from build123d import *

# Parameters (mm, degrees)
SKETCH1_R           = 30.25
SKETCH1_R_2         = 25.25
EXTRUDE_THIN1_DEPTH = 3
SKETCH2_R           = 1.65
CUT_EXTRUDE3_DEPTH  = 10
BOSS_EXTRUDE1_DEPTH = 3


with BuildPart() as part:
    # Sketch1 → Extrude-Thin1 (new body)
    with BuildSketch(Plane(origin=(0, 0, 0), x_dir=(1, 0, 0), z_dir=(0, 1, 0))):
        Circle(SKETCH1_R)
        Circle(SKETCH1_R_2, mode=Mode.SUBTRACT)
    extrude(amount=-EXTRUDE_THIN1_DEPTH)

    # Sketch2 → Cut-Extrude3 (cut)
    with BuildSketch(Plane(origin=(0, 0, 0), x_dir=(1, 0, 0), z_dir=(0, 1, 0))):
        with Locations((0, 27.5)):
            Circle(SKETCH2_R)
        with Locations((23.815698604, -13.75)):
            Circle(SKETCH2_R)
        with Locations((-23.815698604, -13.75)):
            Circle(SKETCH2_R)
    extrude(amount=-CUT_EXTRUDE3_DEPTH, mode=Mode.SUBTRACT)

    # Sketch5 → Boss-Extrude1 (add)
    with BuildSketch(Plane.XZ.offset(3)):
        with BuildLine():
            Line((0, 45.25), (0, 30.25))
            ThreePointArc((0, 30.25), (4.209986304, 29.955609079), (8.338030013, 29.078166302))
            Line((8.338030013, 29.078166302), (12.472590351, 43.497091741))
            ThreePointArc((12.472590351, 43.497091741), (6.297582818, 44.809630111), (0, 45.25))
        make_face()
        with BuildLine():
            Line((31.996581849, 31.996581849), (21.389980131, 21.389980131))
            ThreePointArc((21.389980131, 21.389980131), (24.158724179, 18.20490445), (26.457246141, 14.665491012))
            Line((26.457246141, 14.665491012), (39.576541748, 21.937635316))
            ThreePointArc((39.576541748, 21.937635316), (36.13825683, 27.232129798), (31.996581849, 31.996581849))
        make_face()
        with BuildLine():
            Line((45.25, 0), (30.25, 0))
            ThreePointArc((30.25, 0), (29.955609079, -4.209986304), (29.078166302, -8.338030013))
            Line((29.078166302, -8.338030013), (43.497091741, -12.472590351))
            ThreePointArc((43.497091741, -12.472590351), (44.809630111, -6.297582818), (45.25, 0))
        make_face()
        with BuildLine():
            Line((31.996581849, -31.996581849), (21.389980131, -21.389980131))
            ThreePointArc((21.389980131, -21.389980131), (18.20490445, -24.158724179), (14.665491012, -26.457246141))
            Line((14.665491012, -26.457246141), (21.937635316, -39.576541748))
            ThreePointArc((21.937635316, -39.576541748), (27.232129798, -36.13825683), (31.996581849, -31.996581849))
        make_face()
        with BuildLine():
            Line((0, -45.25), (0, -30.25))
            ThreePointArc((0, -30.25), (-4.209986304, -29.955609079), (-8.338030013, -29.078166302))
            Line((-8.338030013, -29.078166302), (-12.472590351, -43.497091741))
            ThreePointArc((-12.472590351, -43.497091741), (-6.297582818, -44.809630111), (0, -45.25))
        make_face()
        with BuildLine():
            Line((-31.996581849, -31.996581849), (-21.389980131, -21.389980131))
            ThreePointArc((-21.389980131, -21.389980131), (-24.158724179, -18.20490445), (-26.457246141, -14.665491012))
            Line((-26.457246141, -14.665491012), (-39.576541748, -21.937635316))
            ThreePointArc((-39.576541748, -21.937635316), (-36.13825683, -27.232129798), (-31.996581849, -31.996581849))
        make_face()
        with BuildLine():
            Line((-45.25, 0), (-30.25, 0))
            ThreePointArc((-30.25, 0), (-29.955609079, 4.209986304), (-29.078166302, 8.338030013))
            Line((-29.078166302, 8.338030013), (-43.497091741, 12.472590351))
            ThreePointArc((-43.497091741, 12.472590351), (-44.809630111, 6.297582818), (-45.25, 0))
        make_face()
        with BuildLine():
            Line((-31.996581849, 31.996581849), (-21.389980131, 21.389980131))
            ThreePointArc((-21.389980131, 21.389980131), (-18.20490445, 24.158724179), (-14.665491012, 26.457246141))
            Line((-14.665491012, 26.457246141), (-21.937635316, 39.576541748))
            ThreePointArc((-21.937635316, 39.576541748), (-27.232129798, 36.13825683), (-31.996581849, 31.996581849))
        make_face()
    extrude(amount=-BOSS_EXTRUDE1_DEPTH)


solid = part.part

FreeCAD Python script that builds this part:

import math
import FreeCAD as App
import Part
import Sketcher
Q = App.Units.Quantity

doc = App.newDocument("Part")
body = doc.addObject("PartDesign::Body", "Body")

# Sketch on XZ plane
sketch1 = body.newObject("Sketcher::SketchObject", "Sketch")
sketch1.AttachmentSupport = (doc.getObject("XZ_Plane"), [""])
sketch1.MapMode = "FlatFace"
sketch1.addGeometry(Part.Circle(App.Vector(0, 0, 0), App.Vector(0, 0, 1), 30), False)
sketch1.addGeometry(Part.Circle(App.Vector(0, 0, 0), App.Vector(0, 0, 1), 25), False)
sketch1.addConstraint(Sketcher.Constraint("Coincident", 0, 3, -1, 1))
sketch1.addConstraint(Sketcher.Constraint("Coincident", 1, 3, -1, 1))
sketch1.addConstraint(Sketcher.Constraint("Diameter", 0, Q("60.5 mm")))
sketch1.addConstraint(Sketcher.Constraint("Diameter", 1, Q("50.5 mm")))
pad1 = body.newObject("PartDesign::Pad", "Pad")
pad1.Profile = sketch1
pad1.Length = 3

# Sketch on XZ plane
sketch2 = body.newObject("Sketcher::SketchObject", "Sketch001")
sketch2.AttachmentSupport = (doc.getObject("XZ_Plane"), [""])
sketch2.MapMode = "FlatFace"
sketch2.addGeometry(Part.Circle(App.Vector(0, -27.5, 0), App.Vector(0, 0, 1), 1.6), False)
sketch2.addGeometry(Part.Circle(App.Vector(23.8, 13.8, 0), App.Vector(0, 0, 1), 1.6), False)
sketch2.addGeometry(Part.Circle(App.Vector(-23.8, 13.8, 0), App.Vector(0, 0, 1), 1.6), False)
sketch2.addConstraint(Sketcher.Constraint("Equal", 0, 1))
sketch2.addConstraint(Sketcher.Constraint("Equal", 1, 2))
sketch2.addConstraint(Sketcher.Constraint("Symmetric", 1, 3, 2, 3, -2))
sketch2.addConstraint(Sketcher.Constraint("PointOnObject", 0, 3, -2))
sketch2.addConstraint(Sketcher.Constraint("Diameter", 0, Q("3.3 mm")))
sketch2.addConstraint(Sketcher.Constraint("DistanceY", 0, 3, -1, 1, Q("27.5 mm")))
sketch2.addConstraint(Sketcher.Constraint("DistanceY", -1, 1, 1, 3, Q("13.75 mm")))
sketch2.addConstraint(Sketcher.Constraint("DistanceX", -1, 1, 1, 3, Q("23.815699 mm")))
pocket1 = body.newObject("PartDesign::Pocket", "Pocket")
pocket1.Profile = sketch2
pocket1.Length = 10
pocket1.Reversed = True

# Sketch on XZ plane
sketch3 = body.newObject("Sketcher::SketchObject", "Sketch002")
sketch3.AttachmentSupport = (doc.getObject("XZ_Plane"), [""])
sketch3.MapMode = "FlatFace"
sketch3.AttachmentOffset = App.Placement(App.Vector(0, 0, 3), App.Rotation())
sketch3.addGeometry(Part.LineSegment(App.Vector(0, 45, 0), App.Vector(0, 30, 0)), False)
sketch3.addGeometry(Part.ArcOfCircle(Part.Circle(App.Vector(0, 0, 0), App.Vector(0, 0, 1), 30), math.radians(74), math.radians(90)), False)
sketch3.addGeometry(Part.LineSegment(App.Vector(8, 29, 0), App.Vector(12, 43, 0)), False)
sketch3.addGeometry(Part.ArcOfCircle(Part.Circle(App.Vector(0, 0, 0), App.Vector(0, 0, 1), 45), math.radians(74), math.radians(90)), False)
sketch3.addGeometry(Part.LineSegment(App.Vector(32, 32, 0), App.Vector(21, 21, 0)), False)
sketch3.addGeometry(Part.ArcOfCircle(Part.Circle(App.Vector(0, 0, 0), App.Vector(0, 0, 1), 30), math.radians(29), math.radians(45)), False)
sketch3.addGeometry(Part.LineSegment(App.Vector(26, 15, 0), App.Vector(40, 22, 0)), False)
sketch3.addGeometry(Part.ArcOfCircle(Part.Circle(App.Vector(0, 0, 0), App.Vector(0, 0, 1), 45), math.radians(29), math.radians(45)), False)
sketch3.addGeometry(Part.LineSegment(App.Vector(45, 0, 0), App.Vector(30, 0, 0)), False)
sketch3.addGeometry(Part.ArcOfCircle(Part.Circle(App.Vector(0, 0, 0), App.Vector(0, 0, 1), 30), math.radians(-16), math.radians(0)), False)
sketch3.addGeometry(Part.LineSegment(App.Vector(29, -8, 0), App.Vector(43, -12, 0)), False)
sketch3.addGeometry(Part.ArcOfCircle(Part.Circle(App.Vector(0, 0, 0), App.Vector(0, 0, 1), 45), math.radians(-16), math.radians(0)), False)
sketch3.addGeometry(Part.LineSegment(App.Vector(32, -32, 0), App.Vector(21, -21, 0)), False)
sketch3.addGeometry(Part.ArcOfCircle(Part.Circle(App.Vector(0, 0, 0), App.Vector(0, 0, 1), 30), math.radians(-61), math.radians(-45)), False)
sketch3.addGeometry(Part.LineSegment(App.Vector(15, -26, 0), App.Vector(22, -40, 0)), False)
sketch3.addGeometry(Part.ArcOfCircle(Part.Circle(App.Vector(0, 0, 0), App.Vector(0, 0, 1), 45), math.radians(-61), math.radians(-45)), False)
sketch3.addGeometry(Part.LineSegment(App.Vector(0, -45, 0), App.Vector(0, -30, 0)), False)
sketch3.addGeometry(Part.ArcOfCircle(Part.Circle(App.Vector(0, 0, 0), App.Vector(0, 0, 1), 30), math.radians(-106), math.radians(-90)), False)
sketch3.addGeometry(Part.LineSegment(App.Vector(-8, -29, 0), App.Vector(-12, -43, 0)), False)
sketch3.addGeometry(Part.ArcOfCircle(Part.Circle(App.Vector(0, 0, 0), App.Vector(0, 0, 1), 45), math.radians(-106), math.radians(-90)), False)
sketch3.addGeometry(Part.LineSegment(App.Vector(-32, -32, 0), App.Vector(-21, -21, 0)), False)
sketch3.addGeometry(Part.ArcOfCircle(Part.Circle(App.Vector(0, 0, 0), App.Vector(0, 0, 1), 30), math.radians(-151), math.radians(-135)), False)
sketch3.addGeometry(Part.LineSegment(App.Vector(-26, -15, 0), App.Vector(-40, -22, 0)), False)
sketch3.addGeometry(Part.ArcOfCircle(Part.Circle(App.Vector(0, 0, 0), App.Vector(0, 0, 1), 45), math.radians(-151), math.radians(-135)), False)
sketch3.addGeometry(Part.LineSegment(App.Vector(-45, 0, 0), App.Vector(-30, 0, 0)), False)
sketch3.addGeometry(Part.ArcOfCircle(Part.Circle(App.Vector(0, 0, 0), App.Vector(0, 0, 1), 30), math.radians(164), math.radians(180)), False)
sketch3.addGeometry(Part.LineSegment(App.Vector(-29, 8, 0), App.Vector(-43, 12, 0)), False)
sketch3.addGeometry(Part.ArcOfCircle(Part.Circle(App.Vector(0, 0, 0), App.Vector(0, 0, 1), 45), math.radians(164), math.radians(180)), False)
sketch3.addGeometry(Part.LineSegment(App.Vector(-32, 32, 0), App.Vector(-21, 21, 0)), False)
sketch3.addGeometry(Part.ArcOfCircle(Part.Circle(App.Vector(0, 0, 0), App.Vector(0, 0, 1), 30), math.radians(119), math.radians(135)), False)
sketch3.addGeometry(Part.LineSegment(App.Vector(-15, 26, 0), App.Vector(-22, 40, 0)), False)
sketch3.addGeometry(Part.ArcOfCircle(Part.Circle(App.Vector(0, 0, 0), App.Vector(0, 0, 1), 45), math.radians(119), math.radians(135)), False)
sketch3.addConstraint(Sketcher.Constraint("Coincident", 0, 2, 1, 2))
sketch3.addConstraint(Sketcher.Constraint("Coincident", 1, 1, 2, 1))
sketch3.addConstraint(Sketcher.Constraint("Coincident", 2, 2, 3, 1))
sketch3.addConstraint(Sketcher.Constraint("Coincident", 3, 2, 0, 1))
sketch3.addConstraint(Sketcher.Constraint("Coincident", 4, 2, 5, 2))
sketch3.addConstraint(Sketcher.Constraint("Coincident", 5, 1, 6, 1))
sketch3.addConstraint(Sketcher.Constraint("Coincident", 6, 2, 7, 1))
sketch3.addConstraint(Sketcher.Constraint("Coincident", 7, 2, 4, 1))
sketch3.addConstraint(Sketcher.Constraint("Coincident", 8, 2, 9, 2))
sketch3.addConstraint(Sketcher.Constraint("Coincident", 9, 1, 10, 1))
sketch3.addConstraint(Sketcher.Constraint("Coincident", 10, 2, 11, 1))
sketch3.addConstraint(Sketcher.Constraint("Coincident", 11, 2, 8, 1))
sketch3.addConstraint(Sketcher.Constraint("Coincident", 12, 2, 13, 2))
sketch3.addConstraint(Sketcher.Constraint("Coincident", 13, 1, 14, 1))
sketch3.addConstraint(Sketcher.Constraint("Coincident", 14, 2, 15, 1))
sketch3.addConstraint(Sketcher.Constraint("Coincident", 15, 2, 12, 1))
sketch3.addConstraint(Sketcher.Constraint("Coincident", 16, 2, 17, 2))
sketch3.addConstraint(Sketcher.Constraint("Coincident", 17, 1, 18, 1))
sketch3.addConstraint(Sketcher.Constraint("Coincident", 18, 2, 19, 1))
sketch3.addConstraint(Sketcher.Constraint("Coincident", 19, 2, 16, 1))
sketch3.addConstraint(Sketcher.Constraint("Coincident", 20, 2, 21, 2))
sketch3.addConstraint(Sketcher.Constraint("Coincident", 21, 1, 22, 1))
sketch3.addConstraint(Sketcher.Constraint("Coincident", 22, 2, 23, 1))
sketch3.addConstraint(Sketcher.Constraint("Coincident", 23, 2, 20, 1))
sketch3.addConstraint(Sketcher.Constraint("Coincident", 24, 2, 25, 2))
sketch3.addConstraint(Sketcher.Constraint("Coincident", 25, 1, 26, 1))
sketch3.addConstraint(Sketcher.Constraint("Coincident", 26, 2, 27, 1))
sketch3.addConstraint(Sketcher.Constraint("Coincident", 27, 2, 24, 1))
sketch3.addConstraint(Sketcher.Constraint("Coincident", 28, 2, 29, 2))
sketch3.addConstraint(Sketcher.Constraint("Coincident", 29, 1, 30, 1))
sketch3.addConstraint(Sketcher.Constraint("Coincident", 30, 2, 31, 1))
sketch3.addConstraint(Sketcher.Constraint("Coincident", 31, 2, 28, 1))
sketch3.addConstraint(Sketcher.Constraint("Vertical", 0))
sketch3.addConstraint(Sketcher.Constraint("Horizontal", 8))
sketch3.addConstraint(Sketcher.Constraint("Vertical", 16))
sketch3.addConstraint(Sketcher.Constraint("Horizontal", 24))
sketch3.addConstraint(Sketcher.Constraint("Coincident", 1, 3, -1, 1))
sketch3.addConstraint(Sketcher.Constraint("Coincident", 3, 3, -1, 1))
sketch3.addConstraint(Sketcher.Constraint("Coincident", 5, 3, -1, 1))
sketch3.addConstraint(Sketcher.Constraint("Coincident", 7, 3, -1, 1))
sketch3.addConstraint(Sketcher.Constraint("Coincident", 9, 3, -1, 1))
sketch3.addConstraint(Sketcher.Constraint("Coincident", 11, 3, -1, 1))
sketch3.addConstraint(Sketcher.Constraint("Coincident", 13, 3, -1, 1))
sketch3.addConstraint(Sketcher.Constraint("Coincident", 15, 3, -1, 1))
sketch3.addConstraint(Sketcher.Constraint("Coincident", 17, 3, -1, 1))
sketch3.addConstraint(Sketcher.Constraint("Coincident", 19, 3, -1, 1))
sketch3.addConstraint(Sketcher.Constraint("Coincident", 21, 3, -1, 1))
sketch3.addConstraint(Sketcher.Constraint("Coincident", 23, 3, -1, 1))
sketch3.addConstraint(Sketcher.Constraint("Coincident", 25, 3, -1, 1))
sketch3.addConstraint(Sketcher.Constraint("Coincident", 27, 3, -1, 1))
sketch3.addConstraint(Sketcher.Constraint("Coincident", 29, 3, -1, 1))
sketch3.addConstraint(Sketcher.Constraint("Coincident", 31, 3, -1, 1))
sketch3.addConstraint(Sketcher.Constraint("Equal", 1, 5))
sketch3.addConstraint(Sketcher.Constraint("Equal", 3, 7))
sketch3.addConstraint(Sketcher.Constraint("Equal", 5, 9))
sketch3.addConstraint(Sketcher.Constraint("Equal", 7, 11))
sketch3.addConstraint(Sketcher.Constraint("Equal", 9, 13))
sketch3.addConstraint(Sketcher.Constraint("Equal", 11, 15))
sketch3.addConstraint(Sketcher.Constraint("Equal", 13, 17))
sketch3.addConstraint(Sketcher.Constraint("Equal", 15, 19))
sketch3.addConstraint(Sketcher.Constraint("Equal", 17, 21))
sketch3.addConstraint(Sketcher.Constraint("Equal", 19, 23))
sketch3.addConstraint(Sketcher.Constraint("Equal", 21, 25))
sketch3.addConstraint(Sketcher.Constraint("Equal", 23, 27))
sketch3.addConstraint(Sketcher.Constraint("Equal", 25, 29))
sketch3.addConstraint(Sketcher.Constraint("Equal", 27, 31))
sketch3.addConstraint(Sketcher.Constraint("PointOnObject", 0, 2, -2))
sketch3.addConstraint(Sketcher.Constraint("PointOnObject", 8, 2, -1))
sketch3.addConstraint(Sketcher.Constraint("PointOnObject", 16, 2, -2))
sketch3.addConstraint(Sketcher.Constraint("PointOnObject", 24, 2, -1))
sketch3.addConstraint(Sketcher.Constraint("Perpendicular", 2, 10))
sketch3.addConstraint(Sketcher.Constraint("Perpendicular", 4, 12))
sketch3.addConstraint(Sketcher.Constraint("Perpendicular", 6, 14))
sketch3.addConstraint(Sketcher.Constraint("Perpendicular", 10, 18))
sketch3.addConstraint(Sketcher.Constraint("Perpendicular", 12, 20))
sketch3.addConstraint(Sketcher.Constraint("Perpendicular", 14, 22))
sketch3.addConstraint(Sketcher.Constraint("Perpendicular", 18, 26))
sketch3.addConstraint(Sketcher.Constraint("Perpendicular", 20, 28))
sketch3.addConstraint(Sketcher.Constraint("Perpendicular", 22, 30))
sketch3.addConstraint(Sketcher.Constraint("Horizontal", 12, 2, 20, 2))
sketch3.addConstraint(Sketcher.Constraint("Horizontal", 15, 2, 23, 2))
sketch3.addConstraint(Sketcher.Constraint("Horizontal", 4, 2, 28, 2))
sketch3.addConstraint(Sketcher.Constraint("Vertical", 4, 2, 12, 2))
sketch3.addConstraint(Sketcher.Constraint("DistanceX", 8, 2, 8, 1, Q("15 mm")))
sketch3.addConstraint(Sketcher.Constraint("Angle", 2, Q("74 deg")))
sketch3.addConstraint(Sketcher.Constraint("Angle", 6, Q("29 deg")))
sketch3.addConstraint(Sketcher.Constraint("Radius", 1, Q("30.25 mm")))
sketch3.addConstraint(Sketcher.Constraint("DistanceX", -1, 1, 1, 1, Q("8.33803 mm")))
sketch3.addConstraint(Sketcher.Constraint("DistanceX", -1, 1, 4, 2, Q("21.38998 mm")))
sketch3.addConstraint(Sketcher.Constraint("DistanceY", -1, 1, 5, 1, Q("14.665491 mm")))
sketch3.addConstraint(Sketcher.Constraint("DistanceY", 9, 1, -1, 1, Q("8.33803 mm")))
sketch3.addConstraint(Sketcher.Constraint("DistanceX", -1, 1, 13, 1, Q("14.665491 mm")))
sketch3.addConstraint(Sketcher.Constraint("DistanceX", 17, 1, -1, 1, Q("8.33803 mm")))
sketch3.addConstraint(Sketcher.Constraint("DistanceY", 21, 1, -1, 1, Q("14.665491 mm")))
sketch3.addConstraint(Sketcher.Constraint("DistanceY", -1, 1, 25, 1, Q("8.33803 mm")))
sketch3.addConstraint(Sketcher.Constraint("DistanceX", 29, 1, -1, 1, Q("14.665491 mm")))
pad2 = body.newObject("PartDesign::Pad", "Pad001")
pad2.Profile = sketch3
pad2.Length = 3
pad2.Reversed = True

doc.recompute()
